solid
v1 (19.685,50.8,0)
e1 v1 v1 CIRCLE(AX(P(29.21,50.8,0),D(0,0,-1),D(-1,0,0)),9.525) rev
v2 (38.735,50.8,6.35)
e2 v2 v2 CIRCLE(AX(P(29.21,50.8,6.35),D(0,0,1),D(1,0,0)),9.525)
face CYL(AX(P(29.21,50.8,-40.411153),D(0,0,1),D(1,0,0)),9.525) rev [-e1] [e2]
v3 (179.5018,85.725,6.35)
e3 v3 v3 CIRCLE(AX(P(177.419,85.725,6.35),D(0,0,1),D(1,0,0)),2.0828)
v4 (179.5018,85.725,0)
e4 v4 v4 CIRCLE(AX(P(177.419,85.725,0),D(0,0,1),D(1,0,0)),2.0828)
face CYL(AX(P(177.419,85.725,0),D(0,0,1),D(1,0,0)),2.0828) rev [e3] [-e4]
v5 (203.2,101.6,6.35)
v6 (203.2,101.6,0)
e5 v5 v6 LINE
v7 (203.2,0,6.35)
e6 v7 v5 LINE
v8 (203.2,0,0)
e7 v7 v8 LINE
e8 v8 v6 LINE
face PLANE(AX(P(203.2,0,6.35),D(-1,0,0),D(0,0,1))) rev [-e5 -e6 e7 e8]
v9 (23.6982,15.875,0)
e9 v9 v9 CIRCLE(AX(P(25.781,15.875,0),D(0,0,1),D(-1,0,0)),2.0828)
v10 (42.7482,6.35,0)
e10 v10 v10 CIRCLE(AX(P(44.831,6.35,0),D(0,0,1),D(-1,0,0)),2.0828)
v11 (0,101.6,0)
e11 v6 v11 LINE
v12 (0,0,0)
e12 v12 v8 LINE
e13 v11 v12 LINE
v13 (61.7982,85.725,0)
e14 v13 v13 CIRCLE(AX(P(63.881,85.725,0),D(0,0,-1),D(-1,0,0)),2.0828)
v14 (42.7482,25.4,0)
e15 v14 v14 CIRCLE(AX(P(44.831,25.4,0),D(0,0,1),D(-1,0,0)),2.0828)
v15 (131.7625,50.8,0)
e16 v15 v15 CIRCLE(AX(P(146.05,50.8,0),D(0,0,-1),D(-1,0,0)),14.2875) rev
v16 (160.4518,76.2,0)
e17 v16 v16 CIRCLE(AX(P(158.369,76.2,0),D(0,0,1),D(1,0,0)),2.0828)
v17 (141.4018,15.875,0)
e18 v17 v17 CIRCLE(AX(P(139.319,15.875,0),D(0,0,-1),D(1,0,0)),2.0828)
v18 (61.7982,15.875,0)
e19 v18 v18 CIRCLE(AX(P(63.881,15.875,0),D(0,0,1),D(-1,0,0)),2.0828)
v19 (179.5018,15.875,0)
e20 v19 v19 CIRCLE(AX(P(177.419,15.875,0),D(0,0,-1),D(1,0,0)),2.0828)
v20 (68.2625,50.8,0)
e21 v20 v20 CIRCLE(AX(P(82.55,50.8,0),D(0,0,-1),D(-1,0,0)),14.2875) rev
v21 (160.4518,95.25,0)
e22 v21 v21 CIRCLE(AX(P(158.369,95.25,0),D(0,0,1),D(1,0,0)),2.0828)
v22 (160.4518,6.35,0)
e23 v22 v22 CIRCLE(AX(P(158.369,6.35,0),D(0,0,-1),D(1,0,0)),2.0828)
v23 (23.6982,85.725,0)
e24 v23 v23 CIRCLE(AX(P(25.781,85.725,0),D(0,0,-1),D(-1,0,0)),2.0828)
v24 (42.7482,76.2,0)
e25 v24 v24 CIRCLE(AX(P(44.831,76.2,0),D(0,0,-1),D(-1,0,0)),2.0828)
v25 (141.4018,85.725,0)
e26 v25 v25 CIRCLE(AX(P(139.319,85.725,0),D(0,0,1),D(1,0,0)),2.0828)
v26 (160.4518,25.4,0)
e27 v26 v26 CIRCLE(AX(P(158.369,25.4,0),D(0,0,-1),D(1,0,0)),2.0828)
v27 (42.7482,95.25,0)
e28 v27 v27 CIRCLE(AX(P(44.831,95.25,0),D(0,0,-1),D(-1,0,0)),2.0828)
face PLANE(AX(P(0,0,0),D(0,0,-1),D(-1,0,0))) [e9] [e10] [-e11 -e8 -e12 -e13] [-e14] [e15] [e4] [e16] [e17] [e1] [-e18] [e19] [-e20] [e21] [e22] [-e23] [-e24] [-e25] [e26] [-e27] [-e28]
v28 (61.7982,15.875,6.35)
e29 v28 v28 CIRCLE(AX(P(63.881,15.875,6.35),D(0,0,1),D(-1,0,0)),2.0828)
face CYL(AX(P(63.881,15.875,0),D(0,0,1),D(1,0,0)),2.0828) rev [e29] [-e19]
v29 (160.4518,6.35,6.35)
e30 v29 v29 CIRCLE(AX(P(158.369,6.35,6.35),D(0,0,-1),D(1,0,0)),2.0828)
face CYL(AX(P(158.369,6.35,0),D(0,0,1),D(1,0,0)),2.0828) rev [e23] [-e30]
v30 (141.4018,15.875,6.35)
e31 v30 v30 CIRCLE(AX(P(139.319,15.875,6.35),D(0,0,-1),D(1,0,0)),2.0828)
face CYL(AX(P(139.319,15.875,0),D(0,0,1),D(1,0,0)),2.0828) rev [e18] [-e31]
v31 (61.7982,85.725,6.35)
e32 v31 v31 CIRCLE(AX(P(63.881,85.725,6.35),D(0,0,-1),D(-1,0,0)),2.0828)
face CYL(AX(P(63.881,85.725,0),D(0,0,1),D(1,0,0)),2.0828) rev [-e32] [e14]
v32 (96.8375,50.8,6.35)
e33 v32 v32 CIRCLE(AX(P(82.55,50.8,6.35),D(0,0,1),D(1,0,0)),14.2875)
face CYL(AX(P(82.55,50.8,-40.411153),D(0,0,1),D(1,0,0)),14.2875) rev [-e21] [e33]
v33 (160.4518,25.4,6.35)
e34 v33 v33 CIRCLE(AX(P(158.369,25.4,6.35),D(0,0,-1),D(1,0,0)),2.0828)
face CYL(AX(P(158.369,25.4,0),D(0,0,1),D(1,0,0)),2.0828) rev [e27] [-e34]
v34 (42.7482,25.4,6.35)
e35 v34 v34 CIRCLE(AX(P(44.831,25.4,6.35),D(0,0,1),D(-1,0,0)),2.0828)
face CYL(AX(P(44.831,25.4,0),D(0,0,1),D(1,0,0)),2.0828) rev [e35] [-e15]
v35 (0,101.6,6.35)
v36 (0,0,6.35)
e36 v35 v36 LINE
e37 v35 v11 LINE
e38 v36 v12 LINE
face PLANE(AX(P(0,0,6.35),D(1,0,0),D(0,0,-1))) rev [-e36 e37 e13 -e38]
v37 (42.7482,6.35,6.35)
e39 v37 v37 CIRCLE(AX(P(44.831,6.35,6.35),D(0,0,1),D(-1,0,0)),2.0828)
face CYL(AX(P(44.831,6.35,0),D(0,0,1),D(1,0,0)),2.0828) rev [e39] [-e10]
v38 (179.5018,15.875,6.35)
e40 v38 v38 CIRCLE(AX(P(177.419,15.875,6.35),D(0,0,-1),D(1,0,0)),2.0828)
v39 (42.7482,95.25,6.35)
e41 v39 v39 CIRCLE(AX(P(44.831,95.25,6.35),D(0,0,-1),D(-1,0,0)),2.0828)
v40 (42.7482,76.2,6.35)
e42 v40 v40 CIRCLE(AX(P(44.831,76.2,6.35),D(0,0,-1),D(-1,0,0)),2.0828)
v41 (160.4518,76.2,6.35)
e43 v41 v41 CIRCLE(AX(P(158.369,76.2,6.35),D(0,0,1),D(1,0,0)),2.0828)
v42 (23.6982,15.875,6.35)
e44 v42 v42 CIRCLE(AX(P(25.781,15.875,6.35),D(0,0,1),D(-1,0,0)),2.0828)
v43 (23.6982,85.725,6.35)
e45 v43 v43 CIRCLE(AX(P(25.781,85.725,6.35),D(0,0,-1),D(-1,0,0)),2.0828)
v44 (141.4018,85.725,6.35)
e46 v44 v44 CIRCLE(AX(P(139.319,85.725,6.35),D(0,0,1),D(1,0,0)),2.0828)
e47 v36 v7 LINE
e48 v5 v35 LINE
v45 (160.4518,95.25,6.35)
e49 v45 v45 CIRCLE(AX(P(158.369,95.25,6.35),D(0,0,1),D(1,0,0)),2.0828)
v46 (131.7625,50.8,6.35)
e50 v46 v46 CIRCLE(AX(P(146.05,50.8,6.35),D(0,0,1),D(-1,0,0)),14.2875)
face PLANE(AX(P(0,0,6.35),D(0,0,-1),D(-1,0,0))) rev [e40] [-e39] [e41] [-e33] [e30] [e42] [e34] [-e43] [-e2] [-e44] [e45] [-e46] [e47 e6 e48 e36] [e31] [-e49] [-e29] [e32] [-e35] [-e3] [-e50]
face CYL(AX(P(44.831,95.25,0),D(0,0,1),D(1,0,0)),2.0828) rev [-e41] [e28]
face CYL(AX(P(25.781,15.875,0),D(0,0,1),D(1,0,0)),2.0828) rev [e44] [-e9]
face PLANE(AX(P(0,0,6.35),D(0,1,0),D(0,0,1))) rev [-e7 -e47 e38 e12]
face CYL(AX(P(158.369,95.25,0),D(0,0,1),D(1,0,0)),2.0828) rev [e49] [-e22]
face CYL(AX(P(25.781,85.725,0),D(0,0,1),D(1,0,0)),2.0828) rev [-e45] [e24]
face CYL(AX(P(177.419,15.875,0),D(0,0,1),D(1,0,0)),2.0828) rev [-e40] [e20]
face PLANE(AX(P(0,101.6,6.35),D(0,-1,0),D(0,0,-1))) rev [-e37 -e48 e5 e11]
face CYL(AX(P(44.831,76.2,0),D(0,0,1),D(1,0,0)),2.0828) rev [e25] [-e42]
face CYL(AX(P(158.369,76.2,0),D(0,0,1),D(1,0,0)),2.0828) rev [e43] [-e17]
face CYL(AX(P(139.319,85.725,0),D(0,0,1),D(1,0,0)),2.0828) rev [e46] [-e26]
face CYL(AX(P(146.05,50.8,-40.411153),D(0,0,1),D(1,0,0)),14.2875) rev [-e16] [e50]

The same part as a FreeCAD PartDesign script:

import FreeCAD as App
import Part
import Sketcher

V = App.Vector
Q = App.Units.Quantity


def add_polygon(sketch, points):
    """Adds a closed chain of lines whose ends are joined by coincident constraints."""
    first, n = sketch.GeometryCount, len(points)
    for a, b in zip(points, points[1:] + points[:1]):
        sketch.addGeometry(Part.LineSegment(App.Vector(*a, 0), App.Vector(*b, 0)), False)
    for i in range(n):
        sketch.addConstraint(Sketcher.Constraint("Coincident", first + i, 2, first + (i + 1) % n, 1))

doc = App.newDocument("Part")
params = doc.addObject("Spreadsheet::Sheet", "Params")
for row, (alias, value) in enumerate([
    ("sketch1_width", "8 in"),
    ("sketch1_height", "4 in"),
    ("pad1_length", "0.25 in"),
    ("sketch2_diameter", "0.75 in"),
    ("sketch2_diameter2", "1.125 in"),
    ("pocket1_length", "0.25 in"),
    ("sketch3_diameter", "0.164 in"),
    ("sketch4_diameter", "0.164 in"),
], start=1):
    params.set(f"A{row}", alias)
    params.set(f"B{row}", "=" + value)
    params.setAlias(f"B{row}", alias)

body = doc.addObject("PartDesign::Body", "Body")

sketch1 = body.newObject("Sketcher::SketchObject", "Sketch")
sketch1.AttachmentSupport = (doc.getObject("XY_Plane"), [""])
sketch1.MapMode = "FlatFace"
add_polygon(sketch1, [(0, 102), (0, 0), (203, 0), (203, 102)])
sketch1.addConstraint([
    Sketcher.Constraint("Vertical", 0),
    Sketcher.Constraint("Horizontal", 1),
    Sketcher.Constraint("Vertical", 2),
    Sketcher.Constraint("Horizontal", 3),
    Sketcher.Constraint("Coincident", 0, 2, -1, 1),
    Sketcher.Constraint("DistanceX", 1, 1, 1, 2, Q("8 in")),
    Sketcher.Constraint("DistanceY", 0, 2, 0, 1, Q("4 in")),
])
sketch1.setExpression("Constraints[9]", "Params.sketch1_width")
sketch1.setExpression("Constraints[10]", "Params.sketch1_height")
pad1 = body.newObject("PartDesign::Pad", "Pad")
pad1.Profile = sketch1
pad1.setExpression("Length", "Params.pad1_length")

sketch2 = body.newObject("Sketcher::SketchObject", "Sketch001")
sketch2.AttachmentSupport = (doc.getObject("XY_Plane"), [""])
sketch2.MapMode = "FlatFace"
sketch2.AttachmentOffset = App.Placement(V(0, 0, 0.25 * 25.4), App.Rotation())
sketch2.addGeometry([
    Part.Circle(V(83, 51, 0), V(0, 0, 1), 14),
    Part.Circle(V(146, 51, 0), V(0, 0, 1), 14),
    Part.Circle(V(29, 51, 0), V(0, 0, 1), 10),
], False)
sketch2.addConstraint([
    Sketcher.Constraint("Equal", 0, 1),
    Sketcher.Constraint("Horizontal", 0, 3, 1, 3),
    Sketcher.Constraint("Horizontal", 1, 3, 2, 3),
    Sketcher.Constraint("Diameter", 2, Q("0.75 in")),
    Sketcher.Constraint("Diameter", 0, Q("1.125 in")),
    Sketcher.Constraint("DistanceY", -1, 1, 0, 3, Q("2 in")),
    Sketcher.Constraint("DistanceX", 0, 3, 1, 3, Q("2.5 in")),
    Sketcher.Constraint("DistanceX", 2, 3, 0, 3, Q("2.1 in")),
    Sketcher.Constraint("DistanceX", -1, 1, 0, 3, Q("3.25 in")),
])
sketch2.setExpression("Constraints[3]", "Params.sketch2_diameter")
sketch2.setExpression("Constraints[4]", "Params.sketch2_diameter2")
pocket1 = body.newObject("PartDesign::Pocket", "Pocket")
pocket1.Profile = sketch2
pocket1.setExpression("Length", "Params.pocket1_length")

sketch3 = body.newObject("Sketcher::SketchObject", "Sketch002")
sketch3.AttachmentSupport = (doc.getObject("XY_Plane"), [""])
sketch3.MapMode = "FlatFace"
sketch3.AttachmentOffset = App.Placement(V(0, 0, 0.25 * 25.4), App.Rotation())
sketch3.addGeometry([
    Part.Circle(V(139.3, 85.7, 0), V(0, 0, 1), 2.1),
    Part.Circle(V(158.4, 95.2, 0), V(0, 0, 1), 2.1),
    Part.Circle(V(158.4, 76.2, 0), V(0, 0, 1), 2.1),
    Part.Circle(V(177.4, 85.7, 0), V(0, 0, 1), 2.1),
], False)
sketch3.addConstraint([
    Sketcher.Constraint("Equal", 0, 1),
    Sketcher.Constraint("Equal", 1, 2),
    Sketcher.Constraint("Equal", 2, 3),
    Sketcher.Constraint("Horizontal", 0, 3, 3, 3),
    Sketcher.Constraint("Vertical", 1, 3, 2, 3),
    Sketcher.Constraint("Diameter", 0, Q("0.164 in")),
    Sketcher.Constraint("DistanceY", -1, 1, 2, 3, Q("3 in")),
    Sketcher.Constraint("DistanceX", 0, 3, 3, 3, Q("1.5 in")),
    Sketcher.Constraint("DistanceY", -1, 1, 1, 3, Q("3.75 in")),
    Sketcher.Constraint("DistanceX", 0, 3, 1, 3, Q("0.75 in")),
    Sketcher.Constraint("DistanceX", -1, 1, 0, 3, Q("5.485 in")),
    Sketcher.Constraint("DistanceY", -1, 1, 0, 3, Q("3.375 in")),
])
sketch3.setExpression("Constraints[5]", "Params.sketch3_diameter")
pocket2 = body.newObject("PartDesign::Pocket", "Pocket001")
pocket2.Profile = sketch3
pocket2.Type = "ThroughAll"
doc.recompute()

datumplane = body.newObject("PartDesign::Plane", "DatumPlane")
datumplane.AttachmentSupport = (doc.getObject("XZ_Plane"), [""])
datumplane.MapMode = "FlatFace"
datumplane.AttachmentOffset = App.Placement(V(0, 0, -2 * 25.4), App.Rotation())
mirrored = body.newObject("PartDesign::Mirrored", "Mirrored")
mirrored.Originals = [pocket2]
mirrored.MirrorPlane = (datumplane, [""])
body.Tip = mirrored
doc.recompute()

datumplane2 = body.newObject("PartDesign::Plane", "DatumPlane001")
datumplane2.AttachmentSupport = (doc.getObject("YZ_Plane"), [""])
datumplane2.MapMode = "FlatFace"
datumplane2.AttachmentOffset = App.Placement(V(0, 0, 4 * 25.4), App.Rotation())
mirrored2 = body.newObject("PartDesign::Mirrored", "Mirrored001")
mirrored2.Originals = [pocket2]
mirrored2.MirrorPlane = (datumplane2, [""])
body.Tip = mirrored2

sketch4 = body.newObject("Sketcher::SketchObject", "Sketch003")
sketch4.AttachmentSupport = (doc.getObject("XY_Plane"), [""])
sketch4.MapMode = "FlatFace"
sketch4.AttachmentOffset = App.Placement(V(0, 0, 0.25 * 25.4), App.Rotation())
sketch4.addGeometry([
    Part.Circle(V(63.9, 15.9, 0), V(0, 0, 1), 2.1),
    Part.Circle(V(44.8, 6.3, 0), V(0, 0, 1), 2.1),
    Part.Circle(V(44.8, 25.4, 0), V(0, 0, 1), 2.1),
    Part.Circle(V(25.8, 15.9, 0), V(0, 0, 1), 2.1),
], False)
sketch4.addConstraint([
    Sketcher.Constraint("Equal", 0, 1),
    Sketcher.Constraint("Equal", 1, 2),
    Sketcher.Constraint("Equal", 2, 3),
    Sketcher.Constraint("Horizontal", 0, 3, 3, 3),
    Sketcher.Constraint("Vertical", 1, 3, 2, 3),
    Sketcher.Constraint("Diameter", 0, Q("0.164 in")),
    Sketcher.Constraint("DistanceY", -1, 1, 2, 3, Q("1 in")),
    Sketcher.Constraint("DistanceX", 3, 3, 0, 3, Q("1.5 in")),
    Sketcher.Constraint("DistanceY", -1, 1, 1, 3, Q("0.25 in")),
    Sketcher.Constraint("DistanceX", 1, 3, 0, 3, Q("0.75 in")),
    Sketcher.Constraint("DistanceX", -1, 1, 0, 3, Q("2.515 in")),
    Sketcher.Constraint("DistanceY", -1, 1, 0, 3, Q("0.625 in")),
])
sketch4.setExpression("Constraints[5]", "Params.sketch4_diameter")
pocket3 = body.newObject("PartDesign::Pocket", "Pocket002")
pocket3.Profile = sketch4
pocket3.Type = "ThroughAll"

doc.recompute()
